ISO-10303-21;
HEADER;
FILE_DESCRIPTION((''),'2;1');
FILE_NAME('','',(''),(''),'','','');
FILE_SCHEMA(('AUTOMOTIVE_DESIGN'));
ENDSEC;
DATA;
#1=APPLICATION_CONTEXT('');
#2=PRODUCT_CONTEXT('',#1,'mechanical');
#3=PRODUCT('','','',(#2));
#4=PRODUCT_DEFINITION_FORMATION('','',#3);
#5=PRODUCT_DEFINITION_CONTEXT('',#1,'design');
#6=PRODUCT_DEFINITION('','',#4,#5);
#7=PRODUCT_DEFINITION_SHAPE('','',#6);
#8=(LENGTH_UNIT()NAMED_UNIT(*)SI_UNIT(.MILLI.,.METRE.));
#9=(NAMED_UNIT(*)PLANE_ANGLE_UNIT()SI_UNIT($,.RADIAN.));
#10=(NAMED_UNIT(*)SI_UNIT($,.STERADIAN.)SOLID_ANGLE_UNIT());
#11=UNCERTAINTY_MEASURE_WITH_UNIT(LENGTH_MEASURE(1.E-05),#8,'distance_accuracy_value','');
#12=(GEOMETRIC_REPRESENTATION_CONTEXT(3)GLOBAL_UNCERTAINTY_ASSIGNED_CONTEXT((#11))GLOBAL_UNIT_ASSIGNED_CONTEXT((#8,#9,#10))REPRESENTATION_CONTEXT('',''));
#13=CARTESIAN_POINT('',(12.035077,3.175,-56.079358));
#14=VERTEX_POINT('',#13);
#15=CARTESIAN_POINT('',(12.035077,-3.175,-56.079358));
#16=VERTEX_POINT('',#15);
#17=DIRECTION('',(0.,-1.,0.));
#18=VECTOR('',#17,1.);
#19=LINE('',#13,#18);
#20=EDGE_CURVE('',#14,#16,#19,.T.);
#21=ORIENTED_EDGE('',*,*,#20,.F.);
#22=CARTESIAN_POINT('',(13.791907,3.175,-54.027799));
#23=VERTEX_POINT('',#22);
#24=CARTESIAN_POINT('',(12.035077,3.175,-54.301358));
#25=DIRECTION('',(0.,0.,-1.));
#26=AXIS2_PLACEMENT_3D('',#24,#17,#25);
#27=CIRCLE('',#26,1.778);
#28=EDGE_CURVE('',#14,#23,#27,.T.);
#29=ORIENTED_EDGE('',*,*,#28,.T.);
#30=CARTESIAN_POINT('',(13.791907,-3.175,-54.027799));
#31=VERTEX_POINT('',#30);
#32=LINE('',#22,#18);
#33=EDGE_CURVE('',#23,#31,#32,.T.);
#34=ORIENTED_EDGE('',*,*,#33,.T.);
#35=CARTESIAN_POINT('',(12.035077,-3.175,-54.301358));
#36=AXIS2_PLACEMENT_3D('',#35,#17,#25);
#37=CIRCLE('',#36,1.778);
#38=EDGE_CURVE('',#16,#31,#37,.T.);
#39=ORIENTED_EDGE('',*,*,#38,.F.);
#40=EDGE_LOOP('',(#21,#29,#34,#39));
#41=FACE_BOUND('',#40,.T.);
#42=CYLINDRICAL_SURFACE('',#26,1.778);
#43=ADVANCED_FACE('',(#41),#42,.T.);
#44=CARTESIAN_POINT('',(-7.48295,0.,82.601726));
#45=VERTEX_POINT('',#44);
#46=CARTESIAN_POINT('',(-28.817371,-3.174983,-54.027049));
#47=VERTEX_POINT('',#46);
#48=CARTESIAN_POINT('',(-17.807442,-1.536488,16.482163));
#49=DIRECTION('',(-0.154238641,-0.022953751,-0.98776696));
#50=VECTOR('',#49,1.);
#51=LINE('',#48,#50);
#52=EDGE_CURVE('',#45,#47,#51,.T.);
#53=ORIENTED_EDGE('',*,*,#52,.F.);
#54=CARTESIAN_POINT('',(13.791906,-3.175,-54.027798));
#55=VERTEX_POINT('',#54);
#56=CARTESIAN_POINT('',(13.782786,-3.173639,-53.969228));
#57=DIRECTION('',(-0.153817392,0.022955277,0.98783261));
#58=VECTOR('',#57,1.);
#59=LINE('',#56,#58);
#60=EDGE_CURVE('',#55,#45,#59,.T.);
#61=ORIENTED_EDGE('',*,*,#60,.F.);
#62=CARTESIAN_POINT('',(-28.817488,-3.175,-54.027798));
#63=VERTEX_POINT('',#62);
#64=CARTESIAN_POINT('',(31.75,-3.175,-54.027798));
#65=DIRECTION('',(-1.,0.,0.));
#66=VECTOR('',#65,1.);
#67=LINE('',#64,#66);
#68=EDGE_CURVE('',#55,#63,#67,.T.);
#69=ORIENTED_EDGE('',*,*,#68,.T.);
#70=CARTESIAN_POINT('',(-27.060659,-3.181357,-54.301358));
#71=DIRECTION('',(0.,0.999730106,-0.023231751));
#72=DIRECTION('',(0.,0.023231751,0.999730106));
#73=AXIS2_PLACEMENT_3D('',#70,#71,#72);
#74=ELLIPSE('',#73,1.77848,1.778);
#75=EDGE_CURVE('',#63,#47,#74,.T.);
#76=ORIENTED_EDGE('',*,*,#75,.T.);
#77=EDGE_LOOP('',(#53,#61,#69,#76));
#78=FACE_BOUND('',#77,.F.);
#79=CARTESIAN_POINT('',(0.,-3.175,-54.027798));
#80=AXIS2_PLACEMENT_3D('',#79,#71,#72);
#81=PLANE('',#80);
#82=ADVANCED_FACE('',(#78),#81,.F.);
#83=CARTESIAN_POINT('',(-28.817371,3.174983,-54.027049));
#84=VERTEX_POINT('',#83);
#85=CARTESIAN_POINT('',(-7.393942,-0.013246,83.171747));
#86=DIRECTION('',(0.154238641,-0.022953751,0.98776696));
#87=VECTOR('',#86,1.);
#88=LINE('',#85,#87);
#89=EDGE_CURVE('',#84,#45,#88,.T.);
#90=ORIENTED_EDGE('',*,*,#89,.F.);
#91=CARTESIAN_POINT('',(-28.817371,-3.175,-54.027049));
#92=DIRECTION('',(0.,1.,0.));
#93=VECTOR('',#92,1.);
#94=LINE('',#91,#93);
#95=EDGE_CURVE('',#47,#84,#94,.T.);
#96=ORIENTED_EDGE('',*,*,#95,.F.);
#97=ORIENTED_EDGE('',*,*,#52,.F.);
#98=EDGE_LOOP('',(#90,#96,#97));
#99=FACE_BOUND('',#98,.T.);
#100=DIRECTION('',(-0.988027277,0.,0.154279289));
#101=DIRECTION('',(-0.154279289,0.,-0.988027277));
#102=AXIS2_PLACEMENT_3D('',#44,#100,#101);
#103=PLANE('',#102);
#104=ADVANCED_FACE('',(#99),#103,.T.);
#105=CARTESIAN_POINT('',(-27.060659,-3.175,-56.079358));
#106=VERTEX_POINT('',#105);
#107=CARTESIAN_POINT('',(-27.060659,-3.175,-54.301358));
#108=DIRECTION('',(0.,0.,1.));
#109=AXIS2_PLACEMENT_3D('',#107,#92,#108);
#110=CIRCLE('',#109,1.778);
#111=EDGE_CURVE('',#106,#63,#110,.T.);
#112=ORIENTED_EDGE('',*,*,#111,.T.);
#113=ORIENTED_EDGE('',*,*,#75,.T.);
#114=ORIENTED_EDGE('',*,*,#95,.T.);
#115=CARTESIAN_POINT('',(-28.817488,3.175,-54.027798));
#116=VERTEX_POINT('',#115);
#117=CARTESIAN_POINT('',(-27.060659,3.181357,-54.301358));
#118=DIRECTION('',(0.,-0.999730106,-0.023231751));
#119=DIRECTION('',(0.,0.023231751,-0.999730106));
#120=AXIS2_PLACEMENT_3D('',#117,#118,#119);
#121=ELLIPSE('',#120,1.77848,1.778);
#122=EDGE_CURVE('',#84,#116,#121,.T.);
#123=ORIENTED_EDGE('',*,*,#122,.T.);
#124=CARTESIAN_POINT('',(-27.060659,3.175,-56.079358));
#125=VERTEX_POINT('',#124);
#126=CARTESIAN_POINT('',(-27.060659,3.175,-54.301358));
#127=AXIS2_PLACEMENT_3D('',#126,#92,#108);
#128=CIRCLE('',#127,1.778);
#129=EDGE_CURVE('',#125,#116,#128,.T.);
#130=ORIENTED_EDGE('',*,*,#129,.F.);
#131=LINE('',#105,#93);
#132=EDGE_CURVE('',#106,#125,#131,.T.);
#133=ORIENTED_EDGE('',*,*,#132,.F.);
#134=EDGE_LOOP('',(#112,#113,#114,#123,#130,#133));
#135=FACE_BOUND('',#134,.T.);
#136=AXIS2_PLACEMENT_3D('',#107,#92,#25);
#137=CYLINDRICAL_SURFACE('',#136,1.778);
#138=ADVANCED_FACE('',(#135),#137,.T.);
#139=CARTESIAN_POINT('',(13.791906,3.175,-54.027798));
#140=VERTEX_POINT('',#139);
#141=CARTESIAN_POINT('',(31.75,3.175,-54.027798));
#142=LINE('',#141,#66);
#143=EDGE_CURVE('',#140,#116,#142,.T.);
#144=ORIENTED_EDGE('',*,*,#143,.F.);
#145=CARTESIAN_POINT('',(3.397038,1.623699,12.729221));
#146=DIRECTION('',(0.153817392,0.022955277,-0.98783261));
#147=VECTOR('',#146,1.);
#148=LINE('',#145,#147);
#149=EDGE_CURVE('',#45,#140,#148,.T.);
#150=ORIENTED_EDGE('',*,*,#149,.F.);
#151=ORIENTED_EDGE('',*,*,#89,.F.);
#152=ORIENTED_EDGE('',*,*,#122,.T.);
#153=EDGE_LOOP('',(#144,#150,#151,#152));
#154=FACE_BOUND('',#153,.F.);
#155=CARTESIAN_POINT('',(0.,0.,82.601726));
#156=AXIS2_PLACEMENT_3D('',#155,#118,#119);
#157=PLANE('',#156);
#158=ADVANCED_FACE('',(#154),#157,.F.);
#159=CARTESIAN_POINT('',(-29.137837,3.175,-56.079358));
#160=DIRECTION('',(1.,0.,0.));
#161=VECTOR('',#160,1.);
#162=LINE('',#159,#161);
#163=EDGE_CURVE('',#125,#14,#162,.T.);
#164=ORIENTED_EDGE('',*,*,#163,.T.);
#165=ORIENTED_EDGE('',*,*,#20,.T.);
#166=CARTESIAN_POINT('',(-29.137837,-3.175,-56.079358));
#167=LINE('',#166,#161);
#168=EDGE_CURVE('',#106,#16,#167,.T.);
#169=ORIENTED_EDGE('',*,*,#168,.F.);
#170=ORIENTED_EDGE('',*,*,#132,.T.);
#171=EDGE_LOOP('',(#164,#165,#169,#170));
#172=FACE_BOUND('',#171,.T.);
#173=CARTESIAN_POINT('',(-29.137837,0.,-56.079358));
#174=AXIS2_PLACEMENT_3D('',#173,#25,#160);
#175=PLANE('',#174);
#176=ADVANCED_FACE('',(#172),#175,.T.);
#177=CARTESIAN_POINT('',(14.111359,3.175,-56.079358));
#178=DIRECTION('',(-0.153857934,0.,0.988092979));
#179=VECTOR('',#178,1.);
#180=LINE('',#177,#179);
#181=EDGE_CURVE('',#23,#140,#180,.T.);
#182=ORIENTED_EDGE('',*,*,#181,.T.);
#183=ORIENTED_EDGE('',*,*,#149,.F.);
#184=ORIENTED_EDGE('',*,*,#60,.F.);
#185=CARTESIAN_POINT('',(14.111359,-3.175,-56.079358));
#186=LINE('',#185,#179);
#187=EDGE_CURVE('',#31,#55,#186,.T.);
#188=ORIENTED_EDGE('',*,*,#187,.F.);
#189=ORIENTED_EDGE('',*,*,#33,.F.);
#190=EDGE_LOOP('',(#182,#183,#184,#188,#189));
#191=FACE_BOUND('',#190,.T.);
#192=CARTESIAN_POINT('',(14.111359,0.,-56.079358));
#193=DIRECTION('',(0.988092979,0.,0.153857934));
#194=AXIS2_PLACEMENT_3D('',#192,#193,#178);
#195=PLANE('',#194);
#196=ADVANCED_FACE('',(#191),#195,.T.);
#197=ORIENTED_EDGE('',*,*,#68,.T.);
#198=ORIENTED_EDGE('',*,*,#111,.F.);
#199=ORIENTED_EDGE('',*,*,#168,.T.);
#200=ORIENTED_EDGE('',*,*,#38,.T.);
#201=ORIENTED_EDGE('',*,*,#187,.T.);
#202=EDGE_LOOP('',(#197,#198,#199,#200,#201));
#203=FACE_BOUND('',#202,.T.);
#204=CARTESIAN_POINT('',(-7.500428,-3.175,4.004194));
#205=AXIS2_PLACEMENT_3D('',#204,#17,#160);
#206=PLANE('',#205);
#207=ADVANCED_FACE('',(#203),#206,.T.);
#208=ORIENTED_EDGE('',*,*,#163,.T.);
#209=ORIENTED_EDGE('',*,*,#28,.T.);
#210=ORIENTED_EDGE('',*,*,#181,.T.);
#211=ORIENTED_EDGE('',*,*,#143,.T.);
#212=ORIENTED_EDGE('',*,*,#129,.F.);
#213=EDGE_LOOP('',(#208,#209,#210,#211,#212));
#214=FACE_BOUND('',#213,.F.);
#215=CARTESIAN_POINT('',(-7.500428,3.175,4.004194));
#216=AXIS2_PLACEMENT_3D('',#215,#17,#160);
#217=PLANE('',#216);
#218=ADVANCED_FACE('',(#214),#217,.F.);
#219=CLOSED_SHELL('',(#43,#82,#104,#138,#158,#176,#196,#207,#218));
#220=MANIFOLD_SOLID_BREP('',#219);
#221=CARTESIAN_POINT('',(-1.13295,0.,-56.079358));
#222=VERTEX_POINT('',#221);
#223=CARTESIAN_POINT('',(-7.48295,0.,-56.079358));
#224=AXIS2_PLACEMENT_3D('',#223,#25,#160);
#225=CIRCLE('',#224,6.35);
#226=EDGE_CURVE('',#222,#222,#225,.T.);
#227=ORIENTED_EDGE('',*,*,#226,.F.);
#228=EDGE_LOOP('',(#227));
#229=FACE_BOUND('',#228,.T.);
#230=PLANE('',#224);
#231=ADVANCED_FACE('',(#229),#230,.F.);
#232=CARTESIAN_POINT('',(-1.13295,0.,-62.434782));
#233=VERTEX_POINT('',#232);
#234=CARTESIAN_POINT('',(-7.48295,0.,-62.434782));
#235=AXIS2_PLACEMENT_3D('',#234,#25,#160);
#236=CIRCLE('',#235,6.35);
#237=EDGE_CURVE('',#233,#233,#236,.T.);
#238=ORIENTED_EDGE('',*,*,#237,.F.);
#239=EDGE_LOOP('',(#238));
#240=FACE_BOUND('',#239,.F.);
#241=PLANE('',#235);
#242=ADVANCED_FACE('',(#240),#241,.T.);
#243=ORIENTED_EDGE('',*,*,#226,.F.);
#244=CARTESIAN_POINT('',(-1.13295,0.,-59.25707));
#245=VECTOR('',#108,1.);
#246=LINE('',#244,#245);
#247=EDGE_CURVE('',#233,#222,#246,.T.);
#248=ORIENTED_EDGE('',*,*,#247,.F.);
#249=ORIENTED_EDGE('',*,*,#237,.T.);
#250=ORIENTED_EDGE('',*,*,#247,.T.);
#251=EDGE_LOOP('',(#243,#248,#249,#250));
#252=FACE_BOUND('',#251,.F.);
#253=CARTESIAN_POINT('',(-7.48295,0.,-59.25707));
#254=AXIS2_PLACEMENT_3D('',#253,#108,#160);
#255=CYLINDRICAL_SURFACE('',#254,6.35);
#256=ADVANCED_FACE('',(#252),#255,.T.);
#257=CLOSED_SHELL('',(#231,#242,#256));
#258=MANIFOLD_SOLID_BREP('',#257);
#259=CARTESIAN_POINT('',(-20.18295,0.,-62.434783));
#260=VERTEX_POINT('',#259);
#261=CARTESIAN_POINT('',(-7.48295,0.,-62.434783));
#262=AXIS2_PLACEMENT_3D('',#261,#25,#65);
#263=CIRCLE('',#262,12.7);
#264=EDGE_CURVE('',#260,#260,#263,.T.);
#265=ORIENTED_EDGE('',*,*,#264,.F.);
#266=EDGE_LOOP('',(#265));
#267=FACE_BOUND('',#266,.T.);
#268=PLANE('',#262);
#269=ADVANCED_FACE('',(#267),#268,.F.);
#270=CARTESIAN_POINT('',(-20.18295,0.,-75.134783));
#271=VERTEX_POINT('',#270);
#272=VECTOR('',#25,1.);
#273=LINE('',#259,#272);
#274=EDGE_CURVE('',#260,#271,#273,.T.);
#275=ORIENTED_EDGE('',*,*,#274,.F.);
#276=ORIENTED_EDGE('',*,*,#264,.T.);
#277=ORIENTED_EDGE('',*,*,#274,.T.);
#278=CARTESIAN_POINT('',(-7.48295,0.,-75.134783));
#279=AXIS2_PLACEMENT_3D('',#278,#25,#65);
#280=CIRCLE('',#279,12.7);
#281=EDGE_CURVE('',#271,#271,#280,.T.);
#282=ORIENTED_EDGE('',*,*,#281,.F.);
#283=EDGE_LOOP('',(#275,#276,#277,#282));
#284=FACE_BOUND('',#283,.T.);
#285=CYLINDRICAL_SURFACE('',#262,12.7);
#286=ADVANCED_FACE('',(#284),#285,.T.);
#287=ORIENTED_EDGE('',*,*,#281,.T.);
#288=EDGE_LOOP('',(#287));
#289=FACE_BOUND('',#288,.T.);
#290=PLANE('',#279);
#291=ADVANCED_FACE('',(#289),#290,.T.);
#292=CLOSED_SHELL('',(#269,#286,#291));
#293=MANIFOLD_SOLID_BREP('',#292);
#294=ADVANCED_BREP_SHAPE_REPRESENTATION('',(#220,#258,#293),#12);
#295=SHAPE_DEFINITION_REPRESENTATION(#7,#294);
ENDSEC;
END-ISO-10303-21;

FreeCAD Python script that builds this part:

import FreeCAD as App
import Part
import Sketcher
Q = App.Units.Quantity


def edges_at(feature, points):
    """Names of the edges that pass closest to the given points."""
    edges = feature.Shape.Edges
    near = lambda p: min(range(len(edges)), key=lambda i: edges[i].distToShape(Part.Vertex(*p))[0])
    return sorted({f"Edge{near(p) + 1}" for p in points})

doc = App.newDocument("Part")
body = doc.addObject("PartDesign::Body", "Body")
body.AllowCompound = True

# Sketch on XZ plane
sketch1 = doc.addObject("Sketcher::SketchObject", "Sketch")
body.addObject(sketch1)
sketch1.AttachmentSupport = (doc.XZ_Plane, [""])
sketch1.MapMode = "FlatFace"
sketch1.addGeometry([
    Part.LineSegment(App.Vector(-20, -62, 0), App.Vector(-20, -75, 0)),  # 0
    Part.LineSegment(App.Vector(-20, -75, 0), App.Vector(-7, -75, 0)),  # 1
    Part.LineSegment(App.Vector(-7, -75, 0), App.Vector(-7, -62, 0)),  # 2
    Part.LineSegment(App.Vector(-7, -62, 0), App.Vector(-20, -62, 0)),  # 3
    Part.LineSegment(App.Vector(-7, -56, 0), App.Vector(-7, -62, 0)),  # 4
    Part.LineSegment(App.Vector(-7, -62, 0), App.Vector(-1, -62, 0)),  # 5
    Part.LineSegment(App.Vector(-1, -62, 0), App.Vector(-1, -56, 0)),  # 6
    Part.LineSegment(App.Vector(-1, -56, 0), App.Vector(-7, -56, 0)),  # 7
], False)
sketch1.addGeometry(Part.LineSegment(App.Vector(-7, -56, 0), App.Vector(-7, -75, 0)), True)  # axis
sketch1.addConstraint([
    Sketcher.Constraint("Coincident", 0, 2, 1, 1),
    Sketcher.Constraint("Coincident", 1, 2, 2, 1),
    Sketcher.Constraint("Coincident", 2, 2, 3, 1),
    Sketcher.Constraint("Coincident", 3, 2, 0, 1),
    Sketcher.Constraint("Coincident", 4, 2, 5, 1),
    Sketcher.Constraint("Coincident", 5, 2, 6, 1),
    Sketcher.Constraint("Coincident", 6, 2, 7, 1),
    Sketcher.Constraint("Coincident", 7, 2, 4, 1),
    Sketcher.Constraint("Vertical", 0),
    Sketcher.Constraint("Horizontal", 1),
    Sketcher.Constraint("Vertical", 2),
    Sketcher.Constraint("Horizontal", 3),
    Sketcher.Constraint("Vertical", 4),
    Sketcher.Constraint("Horizontal", 5),
    Sketcher.Constraint("Vertical", 6),
    Sketcher.Constraint("Horizontal", 7),
    Sketcher.Constraint("Vertical", 8),
    Sketcher.Constraint("Coincident", 4, 2, 2, 2),
    Sketcher.Constraint("Coincident", 8, 1, 7, 2),
    Sketcher.Constraint("Horizontal", 0, 2, 8, 2),
    Sketcher.Constraint("Equal", 3, 0),
    Sketcher.Constraint("DistanceX", 1, 1, 1, 2, Q("0.5 in")),
    Sketcher.Constraint("DistanceX", 5, 1, 5, 2, Q("0.25 in")),
    Sketcher.Constraint("DistanceY", 4, 2, 4, 1, Q("6.355425 mm")),
    Sketcher.Constraint("DistanceX", 0, 2, -1, 1, Q("20.18295 mm")),
    Sketcher.Constraint("DistanceY", 0, 2, -1, 1, Q("75.134783 mm")),
])
revolution = doc.addObject("PartDesign::Revolution", "Revolution")
body.addObject(revolution)
revolution.Profile = sketch1
revolution.ReferenceAxis = (sketch1, ["Axis0"])
revolution.Angle = 360
body2 = doc.addObject("PartDesign::Body", "Body001")

# Sketch on XZ plane
sketch2 = doc.addObject("Sketcher::SketchObject", "Sketch001")
body2.addObject(sketch2)
sketch2.AttachmentSupport = (doc.getObject("XZ_Plane001"), [""])
sketch2.MapMode = "FlatFace"
sketch2.addGeometry([
    Part.LineSegment(App.Vector(-29, -56, 0), App.Vector(14, -56, 0)),
    Part.LineSegment(App.Vector(14, -56, 0), App.Vector(-7, 83, 0)),
    Part.LineSegment(App.Vector(-7, 83, 0), App.Vector(-29, -56, 0)),
], False)
sketch2.addConstraint([
    Sketcher.Constraint("Coincident", 0, 2, 1, 1),
    Sketcher.Constraint("Coincident", 1, 2, 2, 1),
    Sketcher.Constraint("Coincident", 2, 2, 0, 1),
    Sketcher.Constraint("Horizontal", 0),
    Sketcher.Constraint("Distance", 1, Q("140.352261 mm")),
    Sketcher.Constraint("DistanceX", 0, 1, 0, 2, Q("43.249196 mm")),
    Sketcher.Constraint("DistanceX", -1, 1, 0, 2, Q("14.111359 mm")),
    Sketcher.Constraint("DistanceX", 1, 2, -1, 1, Q("7.48295 mm")),
    Sketcher.Constraint("DistanceY", 0, 2, -1, 1, Q("56.079358 mm")),
])
pad1 = doc.addObject("PartDesign::Pad", "Pad")
body2.addObject(pad1)
pad1.Profile = sketch2
pad1.Length = Q("0.25 in")
pad1.Midplane = True
doc.recompute()

fillet = doc.addObject("PartDesign::Fillet", "Fillet")
body2.addObject(fillet)
fillet.Base = (pad1, edges_at(pad1, [(-29.138, 0, -56.079), (14.111, 0, -56.079)]))
fillet.Radius = Q("0.07 in")

# Sketch on YZ plane
sketch3 = doc.addObject("Sketcher::SketchObject", "Sketch002")
body2.addObject(sketch3)
sketch3.AttachmentSupport = (doc.getObject("YZ_Plane001"), [""])
sketch3.MapMode = "FlatFace"
sketch3.addGeometry([
    Part.LineSegment(App.Vector(-3.2, 82.6, 0), App.Vector(-3.2, -54, 0)),  # 0
    Part.LineSegment(App.Vector(-3.2, -54, 0), App.Vector(0, 82.6, 0)),  # 1
    Part.LineSegment(App.Vector(0, 82.6, 0), App.Vector(-3.2, 82.6, 0)),  # 2
    Part.LineSegment(App.Vector(3.2, 82.6, 0), App.Vector(0, 82.6, 0)),  # 3
    Part.LineSegment(App.Vector(0, 82.6, 0), App.Vector(3.2, -54, 0)),  # 4
    Part.LineSegment(App.Vector(3.2, -54, 0), App.Vector(3.2, 82.6, 0)),  # 5
], False)
sketch3.addConstraint([
    Sketcher.Constraint("Coincident", 0, 2, 1, 1),
    Sketcher.Constraint("Coincident", 1, 2, 2, 1),
    Sketcher.Constraint("Coincident", 2, 2, 0, 1),
    Sketcher.Constraint("Coincident", 3, 2, 4, 1),
    Sketcher.Constraint("Coincident", 4, 2, 5, 1),
    Sketcher.Constraint("Coincident", 5, 2, 3, 1),
    Sketcher.Constraint("Vertical", 0),
    Sketcher.Constraint("Horizontal", 2),
    Sketcher.Constraint("Horizontal", 3),
    Sketcher.Constraint("Vertical", 5),
    Sketcher.Constraint("Coincident", 3, 2, 1, 2),
    Sketcher.Constraint("Symmetric", 0, 2, 4, 2, -2),
    Sketcher.Constraint("PointOnObject", 1, 2, -2),
    Sketcher.Constraint("DistanceX", 2, 2, 2, 1, Q("0.125 in")),
    Sketcher.Constraint("Distance", 1, Q("136.666409 mm")),
    Sketcher.Constraint("DistanceY", 0, 2, -1, 1, Q("54.027798 mm")),
])
pocket1 = doc.addObject("PartDesign::Pocket", "Pocket")
body2.addObject(pocket1)
pocket1.Profile = sketch3
pocket1.Length = Q("2.5 in")
pocket1.Midplane = True

doc.recompute()
